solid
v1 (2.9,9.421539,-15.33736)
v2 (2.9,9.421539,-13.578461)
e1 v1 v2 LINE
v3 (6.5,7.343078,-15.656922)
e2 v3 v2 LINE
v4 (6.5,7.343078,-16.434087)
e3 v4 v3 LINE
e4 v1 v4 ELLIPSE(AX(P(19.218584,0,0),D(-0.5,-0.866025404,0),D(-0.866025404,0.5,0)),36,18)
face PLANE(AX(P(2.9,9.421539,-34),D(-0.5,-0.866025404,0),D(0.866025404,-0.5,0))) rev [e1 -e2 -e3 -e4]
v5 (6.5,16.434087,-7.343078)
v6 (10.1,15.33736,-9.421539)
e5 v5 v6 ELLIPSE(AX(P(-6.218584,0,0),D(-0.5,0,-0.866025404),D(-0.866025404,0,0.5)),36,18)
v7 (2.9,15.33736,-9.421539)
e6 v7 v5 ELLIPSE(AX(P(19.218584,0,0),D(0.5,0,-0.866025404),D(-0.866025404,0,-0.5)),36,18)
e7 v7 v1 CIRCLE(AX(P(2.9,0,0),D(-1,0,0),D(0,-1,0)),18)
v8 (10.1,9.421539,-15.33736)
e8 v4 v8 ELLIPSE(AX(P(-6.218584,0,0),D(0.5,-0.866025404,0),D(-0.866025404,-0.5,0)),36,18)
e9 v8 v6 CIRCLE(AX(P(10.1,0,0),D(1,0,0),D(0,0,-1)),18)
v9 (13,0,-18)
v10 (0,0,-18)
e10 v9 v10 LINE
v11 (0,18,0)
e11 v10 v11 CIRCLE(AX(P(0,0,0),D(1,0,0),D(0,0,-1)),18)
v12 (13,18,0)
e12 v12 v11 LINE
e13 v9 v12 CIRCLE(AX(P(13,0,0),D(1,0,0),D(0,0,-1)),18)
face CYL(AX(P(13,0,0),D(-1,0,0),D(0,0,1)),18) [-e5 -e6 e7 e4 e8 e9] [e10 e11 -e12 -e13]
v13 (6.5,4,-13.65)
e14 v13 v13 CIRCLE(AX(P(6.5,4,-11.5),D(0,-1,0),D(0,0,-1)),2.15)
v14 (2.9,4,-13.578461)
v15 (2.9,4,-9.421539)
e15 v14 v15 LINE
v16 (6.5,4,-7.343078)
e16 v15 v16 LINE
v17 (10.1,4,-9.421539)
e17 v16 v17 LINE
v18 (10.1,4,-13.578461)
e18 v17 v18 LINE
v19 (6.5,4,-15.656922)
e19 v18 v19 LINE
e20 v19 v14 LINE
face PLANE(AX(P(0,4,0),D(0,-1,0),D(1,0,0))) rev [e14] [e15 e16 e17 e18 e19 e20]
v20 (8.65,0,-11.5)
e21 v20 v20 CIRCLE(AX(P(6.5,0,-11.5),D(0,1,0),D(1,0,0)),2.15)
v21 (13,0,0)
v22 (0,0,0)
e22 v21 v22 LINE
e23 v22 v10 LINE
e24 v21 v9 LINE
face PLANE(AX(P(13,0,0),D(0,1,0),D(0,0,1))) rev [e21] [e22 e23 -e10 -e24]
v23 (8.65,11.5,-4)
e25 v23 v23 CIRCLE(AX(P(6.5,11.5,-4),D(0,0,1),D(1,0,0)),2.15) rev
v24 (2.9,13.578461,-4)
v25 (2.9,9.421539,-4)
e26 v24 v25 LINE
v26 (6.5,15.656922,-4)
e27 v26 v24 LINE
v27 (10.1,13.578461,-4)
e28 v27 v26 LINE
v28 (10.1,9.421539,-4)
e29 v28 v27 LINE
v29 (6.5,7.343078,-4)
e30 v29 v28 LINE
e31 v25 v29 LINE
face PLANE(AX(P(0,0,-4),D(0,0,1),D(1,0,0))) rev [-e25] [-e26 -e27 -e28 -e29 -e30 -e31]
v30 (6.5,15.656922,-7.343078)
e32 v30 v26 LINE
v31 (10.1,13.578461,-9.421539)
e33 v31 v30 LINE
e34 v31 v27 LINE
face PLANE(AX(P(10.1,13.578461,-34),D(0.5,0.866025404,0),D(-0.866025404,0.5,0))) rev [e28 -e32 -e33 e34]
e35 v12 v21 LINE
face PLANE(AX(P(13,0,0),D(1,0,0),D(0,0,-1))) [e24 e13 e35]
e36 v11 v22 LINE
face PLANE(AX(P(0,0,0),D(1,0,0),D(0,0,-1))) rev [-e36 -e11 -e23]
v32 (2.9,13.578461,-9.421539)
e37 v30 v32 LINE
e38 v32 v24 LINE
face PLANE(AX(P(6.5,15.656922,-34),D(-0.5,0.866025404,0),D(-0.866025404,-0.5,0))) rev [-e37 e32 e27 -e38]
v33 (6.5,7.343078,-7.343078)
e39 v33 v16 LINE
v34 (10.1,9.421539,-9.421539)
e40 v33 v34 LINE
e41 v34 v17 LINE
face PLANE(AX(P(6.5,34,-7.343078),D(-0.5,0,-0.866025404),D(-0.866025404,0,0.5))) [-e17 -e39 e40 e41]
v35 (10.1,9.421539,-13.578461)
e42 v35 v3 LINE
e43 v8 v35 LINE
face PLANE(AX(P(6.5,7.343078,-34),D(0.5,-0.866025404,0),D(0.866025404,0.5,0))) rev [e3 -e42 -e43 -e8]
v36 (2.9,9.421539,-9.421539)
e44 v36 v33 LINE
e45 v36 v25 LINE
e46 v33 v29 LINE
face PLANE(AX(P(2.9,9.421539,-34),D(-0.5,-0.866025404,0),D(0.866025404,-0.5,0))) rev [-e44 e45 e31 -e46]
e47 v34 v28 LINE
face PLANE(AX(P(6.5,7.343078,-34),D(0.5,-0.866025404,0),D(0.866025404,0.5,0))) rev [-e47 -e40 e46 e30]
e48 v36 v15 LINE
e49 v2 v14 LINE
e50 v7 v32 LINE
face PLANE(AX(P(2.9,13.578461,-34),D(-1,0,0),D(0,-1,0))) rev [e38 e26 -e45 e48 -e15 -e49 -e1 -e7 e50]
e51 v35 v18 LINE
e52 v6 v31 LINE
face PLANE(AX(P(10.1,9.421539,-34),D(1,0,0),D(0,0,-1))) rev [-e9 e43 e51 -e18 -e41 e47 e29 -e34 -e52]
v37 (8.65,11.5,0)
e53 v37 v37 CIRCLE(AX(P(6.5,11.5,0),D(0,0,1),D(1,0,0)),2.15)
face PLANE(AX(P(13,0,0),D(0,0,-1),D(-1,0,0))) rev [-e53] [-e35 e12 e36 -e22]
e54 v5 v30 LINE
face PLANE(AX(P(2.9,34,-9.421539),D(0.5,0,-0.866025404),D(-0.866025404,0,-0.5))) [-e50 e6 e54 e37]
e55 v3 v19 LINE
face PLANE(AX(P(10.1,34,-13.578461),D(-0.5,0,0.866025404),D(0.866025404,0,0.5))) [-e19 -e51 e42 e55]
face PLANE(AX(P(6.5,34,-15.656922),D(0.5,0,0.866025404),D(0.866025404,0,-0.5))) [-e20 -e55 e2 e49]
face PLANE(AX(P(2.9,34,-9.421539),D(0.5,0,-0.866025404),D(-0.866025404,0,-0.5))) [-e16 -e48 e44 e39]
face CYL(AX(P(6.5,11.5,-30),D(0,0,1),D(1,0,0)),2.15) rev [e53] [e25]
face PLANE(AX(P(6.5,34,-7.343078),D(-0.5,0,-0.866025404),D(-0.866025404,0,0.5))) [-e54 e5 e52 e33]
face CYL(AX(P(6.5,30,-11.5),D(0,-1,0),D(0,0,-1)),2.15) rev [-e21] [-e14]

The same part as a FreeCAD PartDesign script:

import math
import FreeCAD as App
import Part
import Sketcher
from FreeCAD import Vector
Q = App.Units.Quantity


def add_polygon(sketch, points):
    """Adds a closed chain of lines whose ends are joined by coincident constraints."""
    first, n = sketch.GeometryCount, len(points)
    for a, b in zip(points, points[1:] + points[:1]):
        sketch.addGeometry(Part.LineSegment(App.Vector(*a, 0), App.Vector(*b, 0)), False)
    for i in range(n):
        sketch.addConstraint(Sketcher.Constraint("Coincident", first + i, 2, first + (i + 1) % n, 1))

doc = App.newDocument("Part")
params = doc.addObject("Spreadsheet::Sheet", "Params")
for row, (alias, value) in enumerate([
    ("sketch1_radius", "18 mm"),
    ("pad1_length", "13 mm"),
    ("sketch2_diameter", "4.3 mm"),
    ("pocket1_length", "30 mm"),
    ("pocket2_length", "30 mm"),
], start=1):
    params.set(f"A{row}", alias)
    params.set(f"B{row}", "=" + value)
    params.setAlias(f"B{row}", alias)

body = doc.addObject("PartDesign::Body", "Body")

# Sketch on YZ plane
sketch1 = body.newObject("Sketcher::SketchObject", "Sketch")
sketch1.AttachmentSupport = (doc.getObject("YZ_Plane"), [""])
sketch1.MapMode = "FlatFace"
sketch1.addGeometry(Part.LineSegment(Vector(0, 0, 0), Vector(0, -18, 0)), False)
sketch1.addGeometry(Part.ArcOfCircle(Part.Circle(Vector(0, 0, 0), Vector(0, 0, 1), 18), math.radians(-90), math.radians(0)), False)
sketch1.addGeometry(Part.LineSegment(Vector(18, 0, 0), Vector(0, 0, 0)), False)
sketch1.addConstraint(Sketcher.Constraint("Coincident", 0, 2, 1, 1))
sketch1.addConstraint(Sketcher.Constraint("Coincident", 1, 2, 2, 1))
sketch1.addConstraint(Sketcher.Constraint("Coincident", 2, 2, 0, 1))
sketch1.addConstraint(Sketcher.Constraint("Vertical", 0))
sketch1.addConstraint(Sketcher.Constraint("Horizontal", 2))
sketch1.addConstraint(Sketcher.Constraint("Coincident", 1, 3, -1, 1))
sketch1.addConstraint(Sketcher.Constraint("Coincident", 2, 2, -1, 1))
sketch1.addConstraint(Sketcher.Constraint("Radius", 1, Q("18 mm")))
sketch1.setExpression("Constraints[7]", "Params.sketch1_radius")
pad1 = body.newObject("PartDesign::Pad", "Pad")
pad1.Profile = sketch1
pad1.setExpression("Length", "Params.pad1_length")

# Sketch on XY plane
sketch2 = body.newObject("Sketcher::SketchObject", "Sketch001")
sketch2.AttachmentSupport = (doc.getObject("XY_Plane"), [""])
sketch2.MapMode = "FlatFace"
sketch2.addGeometry(Part.Circle(Vector(6.5, 11.5, 0), Vector(0, 0, 1), 2.1), False)
sketch2.addConstraint(Sketcher.Constraint("Diameter", 0, Q("4.3 mm")))
sketch2.addConstraint(Sketcher.Constraint("DistanceX", -1, 1, 0, 3, Q("6.5 mm")))
sketch2.addConstraint(Sketcher.Constraint("DistanceY", -1, 1, 0, 3, Q("11.5 mm")))
sketch2.setExpression("Constraints[0]", "Params.sketch2_diameter")
pocket1 = body.newObject("PartDesign::Pocket", "Pocket")
pocket1.Profile = sketch2
pocket1.setExpression("Length", "Params.pocket1_length")

# Sketch on XY plane
sketch3 = body.newObject("Sketcher::SketchObject", "Sketch002")
sketch3.AttachmentSupport = (doc.getObject("XY_Plane"), [""])
sketch3.MapMode = "FlatFace"
sketch3.AttachmentOffset = App.Placement(Vector(0, 0, -4), App.Rotation())
add_polygon(sketch3, [(6.5, 15.7), (2.9, 13.6), (2.9, 9.4), (6.5, 7.3), (10.1, 9.4), (10.1, 13.6)])  # lines 0-5
sketch3.addConstraint(Sketcher.Constraint("Vertical", 1))
sketch3.addConstraint(Sketcher.Constraint("Vertical", 4))
sketch3.addConstraint(Sketcher.Constraint("Parallel", 0, 3))
sketch3.addConstraint(Sketcher.Constraint("Parallel", 2, 5))
sketch3.addConstraint(Sketcher.Constraint("Horizontal", 1, 2, 3, 2))
sketch3.addConstraint(Sketcher.Constraint("Horizontal", 0, 2, 4, 2))
sketch3.addConstraint(Sketcher.Constraint("Vertical", 2, 2, 5, 2))
sketch3.addConstraint(Sketcher.Constraint("Angle", 0, Q("-150 deg")))
sketch3.addConstraint(Sketcher.Constraint("DistanceX", -1, 1, 0, 2, Q("2.9 mm")))
sketch3.addConstraint(Sketcher.Constraint("DistanceX", -1, 1, 2, 2, Q("6.5 mm")))
sketch3.addConstraint(Sketcher.Constraint("DistanceY", 1, 2, 1, 1, Q("4.156922 mm")))
sketch3.addConstraint(Sketcher.Constraint("DistanceY", -1, 1, 0, 2, Q("13.578461 mm")))
pocket2 = body.newObject("PartDesign::Pocket", "Pocket001")
pocket2.Profile = sketch3
pocket2.setExpression("Length", "Params.pocket2_length")
doc.recompute()

datumplane = body.newObject("PartDesign::Plane", "DatumPlane")
datumplane.Placement = App.Placement(Vector(0, 0, 0), App.Rotation(Vector(0, 0.707106781, -0.707106781), Vector(-1, 0, 0), Vector(0, 0.707106781, 0.707106781), "ZXY"))
mirrored = body.newObject("PartDesign::Mirrored", "Mirrored")
mirrored.Originals = [pocket1, pocket2]
mirrored.MirrorPlane = (datumplane, [""])
body.Tip = mirrored

doc.recompute()
